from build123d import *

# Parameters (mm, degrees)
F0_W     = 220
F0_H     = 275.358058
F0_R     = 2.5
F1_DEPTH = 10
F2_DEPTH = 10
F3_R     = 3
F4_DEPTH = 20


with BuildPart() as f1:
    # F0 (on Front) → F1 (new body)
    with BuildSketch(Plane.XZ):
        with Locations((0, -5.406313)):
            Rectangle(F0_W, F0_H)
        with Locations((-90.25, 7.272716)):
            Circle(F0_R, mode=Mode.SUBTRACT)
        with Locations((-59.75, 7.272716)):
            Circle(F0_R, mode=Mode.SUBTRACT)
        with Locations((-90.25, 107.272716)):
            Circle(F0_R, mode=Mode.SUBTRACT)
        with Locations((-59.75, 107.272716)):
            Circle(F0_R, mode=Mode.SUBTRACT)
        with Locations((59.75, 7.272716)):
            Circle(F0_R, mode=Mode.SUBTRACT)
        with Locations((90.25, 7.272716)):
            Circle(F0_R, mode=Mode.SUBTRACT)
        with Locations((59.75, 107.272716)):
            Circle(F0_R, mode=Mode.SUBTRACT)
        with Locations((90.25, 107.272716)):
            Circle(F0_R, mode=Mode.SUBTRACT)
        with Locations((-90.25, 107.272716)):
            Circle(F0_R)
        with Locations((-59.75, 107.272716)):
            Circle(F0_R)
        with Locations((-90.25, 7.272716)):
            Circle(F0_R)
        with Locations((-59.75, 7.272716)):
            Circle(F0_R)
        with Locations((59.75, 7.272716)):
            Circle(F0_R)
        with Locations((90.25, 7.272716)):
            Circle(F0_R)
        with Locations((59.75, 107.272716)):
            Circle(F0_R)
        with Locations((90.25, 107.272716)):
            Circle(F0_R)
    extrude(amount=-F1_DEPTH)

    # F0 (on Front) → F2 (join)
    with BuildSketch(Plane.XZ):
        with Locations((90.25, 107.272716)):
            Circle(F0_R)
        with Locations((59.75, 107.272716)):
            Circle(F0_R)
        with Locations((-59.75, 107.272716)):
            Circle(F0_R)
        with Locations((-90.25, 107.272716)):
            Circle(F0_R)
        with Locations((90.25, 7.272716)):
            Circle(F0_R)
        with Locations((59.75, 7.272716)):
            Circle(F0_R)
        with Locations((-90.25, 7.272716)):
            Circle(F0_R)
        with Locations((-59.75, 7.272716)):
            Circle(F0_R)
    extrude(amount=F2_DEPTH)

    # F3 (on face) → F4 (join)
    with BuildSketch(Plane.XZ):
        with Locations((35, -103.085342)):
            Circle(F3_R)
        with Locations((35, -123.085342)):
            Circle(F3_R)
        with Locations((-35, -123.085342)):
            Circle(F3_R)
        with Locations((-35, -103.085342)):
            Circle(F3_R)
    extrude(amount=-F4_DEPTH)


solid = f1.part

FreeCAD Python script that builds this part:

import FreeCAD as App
import Part
import Sketcher
from FreeCAD import Vector


def add_polygon(sketch, points):
    """Adds a closed chain of lines whose ends are joined by coincident constraints."""
    first, n = sketch.GeometryCount, len(points)
    for a, b in zip(points, points[1:] + points[:1]):
        sketch.addGeometry(Part.LineSegment(App.Vector(*a, 0), App.Vector(*b, 0)), False)
    for i in range(n):
        sketch.addConstraint(Sketcher.Constraint("Coincident", first + i, 2, first + (i + 1) % n, 1))

doc = App.newDocument("Part")
body = doc.addObject("PartDesign::Body", "Body")

# Sketch on XZ plane
sketch1 = body.newObject("Sketcher::SketchObject", "Sketch")
sketch1.AttachmentSupport = (doc.getObject("XZ_Plane"), [""])
sketch1.MapMode = "FlatFace"
add_polygon(sketch1, [(-110, 132), (-110, -143), (110, -143), (110, 132)])  # lines 0-3
sketch1.addConstraint([
    Sketcher.Constraint("Vertical", 0),
    Sketcher.Constraint("Horizontal", 1),
    Sketcher.Constraint("Vertical", 2),
    Sketcher.Constraint("Horizontal", 3),
    Sketcher.Constraint("DistanceX", 1, 1, 1, 2, 220.0),
    Sketcher.Constraint("DistanceX", 0, 2, -1, 1, 110.0),
    Sketcher.Constraint("DistanceY", 0, 2, 0, 1, 275.358058),
    Sketcher.Constraint("DistanceY", 0, 2, -1, 1, 143.085342),
])
pad1 = body.newObject("PartDesign::Pad", "Pad")
pad1.Profile = sketch1
pad1.Length = 10
pad1.Reversed = True

# Sketch on XZ plane
sketch2 = body.newObject("Sketcher::SketchObject", "Sketch001")
sketch2.AttachmentSupport = (doc.getObject("XZ_Plane"), [""])
sketch2.MapMode = "FlatFace"
sketch2.addGeometry([
    Part.Circle(Vector(90.2, 107.3, 0), Vector(0, 0, 1), 2.5),  # 0
    Part.Circle(Vector(59.8, 107.3, 0), Vector(0, 0, 1), 2.5),  # 1
    Part.Circle(Vector(-59.8, 107.3, 0), Vector(0, 0, 1), 2.5),  # 2
    Part.Circle(Vector(-90.2, 107.3, 0), Vector(0, 0, 1), 2.5),  # 3
    Part.Circle(Vector(90.2, 7.3, 0), Vector(0, 0, 1), 2.5),  # 4
    Part.Circle(Vector(59.8, 7.3, 0), Vector(0, 0, 1), 2.5),  # 5
    Part.Circle(Vector(-90.2, 7.3, 0), Vector(0, 0, 1), 2.5),  # 6
    Part.Circle(Vector(-59.8, 7.3, 0), Vector(0, 0, 1), 2.5),  # 7
], False)
sketch2.addConstraint([
    Sketcher.Constraint("Equal", 0, 1),
    Sketcher.Constraint("Equal", 1, 2),
    Sketcher.Constraint("Equal", 2, 3),
    Sketcher.Constraint("Equal", 3, 4),
    Sketcher.Constraint("Equal", 4, 5),
    Sketcher.Constraint("Equal", 5, 6),
    Sketcher.Constraint("Equal", 6, 7),
    Sketcher.Constraint("Symmetric", 1, 3, 2, 3, -2),
    Sketcher.Constraint("Symmetric", 0, 3, 3, 3, -2),
    Sketcher.Constraint("Symmetric", 4, 3, 6, 3, -2),
    Sketcher.Constraint("Symmetric", 5, 3, 7, 3, -2),
    Sketcher.Constraint("Horizontal", 0, 3, 1, 3),
    Sketcher.Constraint("Horizontal", 4, 3, 5, 3),
    Sketcher.Constraint("Vertical", 0, 3, 4, 3),
    Sketcher.Constraint("Vertical", 1, 3, 5, 3),
    Sketcher.Constraint("Diameter", 0, 5.0),
    Sketcher.Constraint("DistanceX", 2, 3, 0, 3, 150.0),
    Sketcher.Constraint("DistanceY", 4, 3, 0, 3, 100.0),
    Sketcher.Constraint("DistanceX", 1, 3, 0, 3, 30.5),
    Sketcher.Constraint("DistanceY", -1, 1, 0, 3, 107.272716),
])
pad2 = body.newObject("PartDesign::Pad", "Pad001")
pad2.Profile = sketch2
pad2.Length = 10

# Sketch on XZ plane
sketch3 = body.newObject("Sketcher::SketchObject", "Sketch002")
sketch3.AttachmentSupport = (doc.getObject("XZ_Plane"), [""])
sketch3.MapMode = "FlatFace"
sketch3.addGeometry([
    Part.Circle(Vector(35, -103.1, 0), Vector(0, 0, 1), 3),
    Part.Circle(Vector(35, -123.1, 0), Vector(0, 0, 1), 3),
    Part.Circle(Vector(-35, -123.1, 0), Vector(0, 0, 1), 3),
    Part.Circle(Vector(-35, -103.1, 0), Vector(0, 0, 1), 3),
], False)
sketch3.addConstraint([
    Sketcher.Constraint("Equal", 0, 1),
    Sketcher.Constraint("Equal", 1, 2),
    Sketcher.Constraint("Equal", 2, 3),
    Sketcher.Constraint("Symmetric", 1, 3, 2, 3, -2),
    Sketcher.Constraint("Symmetric", 0, 3, 3, 3, -2),
    Sketcher.Constraint("Vertical", 0, 3, 1, 3),
    Sketcher.Constraint("Diameter", 0, 6.0),
    Sketcher.Constraint("DistanceX", -1, 1, 0, 3, 35.0),
    Sketcher.Constraint("DistanceY", 1, 3, 0, 3, 20.0),
    Sketcher.Constraint("DistanceY", 0, 3, -1, 1, 103.085342),
])
pad3 = body.newObject("PartDesign::Pad", "Pad002")
pad3.Profile = sketch3
pad3.Length = 20
pad3.Reversed = True

doc.recompute()
